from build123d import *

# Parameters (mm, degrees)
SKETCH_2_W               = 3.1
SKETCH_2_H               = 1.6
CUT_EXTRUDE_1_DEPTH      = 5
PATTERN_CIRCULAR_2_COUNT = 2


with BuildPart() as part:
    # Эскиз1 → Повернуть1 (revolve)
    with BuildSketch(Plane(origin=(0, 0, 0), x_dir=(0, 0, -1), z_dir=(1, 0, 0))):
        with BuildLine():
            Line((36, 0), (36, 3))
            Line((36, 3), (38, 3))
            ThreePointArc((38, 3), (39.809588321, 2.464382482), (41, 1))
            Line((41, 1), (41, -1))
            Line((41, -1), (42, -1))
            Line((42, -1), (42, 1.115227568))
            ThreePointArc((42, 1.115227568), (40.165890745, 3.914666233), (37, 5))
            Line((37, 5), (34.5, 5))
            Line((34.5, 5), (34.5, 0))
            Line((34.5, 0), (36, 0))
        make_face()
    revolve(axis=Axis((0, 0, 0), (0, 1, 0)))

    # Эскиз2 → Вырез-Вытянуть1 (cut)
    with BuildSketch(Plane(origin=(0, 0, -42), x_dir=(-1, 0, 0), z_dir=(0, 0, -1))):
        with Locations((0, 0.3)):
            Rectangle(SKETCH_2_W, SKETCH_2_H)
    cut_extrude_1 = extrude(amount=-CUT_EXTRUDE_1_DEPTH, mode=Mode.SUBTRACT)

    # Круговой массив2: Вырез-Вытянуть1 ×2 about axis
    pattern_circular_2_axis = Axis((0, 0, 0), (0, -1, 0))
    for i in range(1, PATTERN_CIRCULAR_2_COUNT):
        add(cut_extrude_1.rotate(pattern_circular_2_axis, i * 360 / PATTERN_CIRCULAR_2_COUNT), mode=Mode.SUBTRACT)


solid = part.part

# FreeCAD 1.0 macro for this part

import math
import FreeCAD as App
import Part
import Sketcher
Q = App.Units.Quantity


def add_polygon(sketch, points):
    """Adds a closed chain of lines whose ends are joined by coincident constraints."""
    first, n = sketch.GeometryCount, len(points)
    for a, b in zip(points, points[1:] + points[:1]):
        sketch.addGeometry(Part.LineSegment(App.Vector(*a, 0), App.Vector(*b, 0)), False)
    for i in range(n):
        sketch.addConstraint(Sketcher.Constraint("Coincident", first + i, 2, first + (i + 1) % n, 1))

doc = App.newDocument("Part")
body = doc.addObject("PartDesign::Body", "Body")

# Sketch on YZ plane
sketch1 = doc.addObject("Sketcher::SketchObject", "Sketch")
body.addObject(sketch1)
sketch1.AttachmentSupport = (doc.YZ_Plane, [""])
sketch1.MapMode = "FlatFace"
sketch1.addGeometry(Part.LineSegment(App.Vector(0, -36, 0), App.Vector(3, -36, 0)), False)
sketch1.addGeometry(Part.LineSegment(App.Vector(3, -36, 0), App.Vector(3, -38, 0)), False)
sketch1.addGeometry(Part.ArcOfCircle(Part.Circle(App.Vector(-0.2, -38, 0), App.Vector(0, 0, 1), 3.2), math.radians(-68), math.radians(1)), False)
sketch1.addGeometry(Part.LineSegment(App.Vector(1, -41, 0), App.Vector(-1, -41, 0)), False)
sketch1.addGeometry(Part.LineSegment(App.Vector(-1, -41, 0), App.Vector(-1, -42, 0)), False)
sketch1.addGeometry(Part.LineSegment(App.Vector(-1, -42, 0), App.Vector(1.1, -42, 0)), False)
sketch1.addGeometry(Part.ArcOfCircle(Part.Circle(App.Vector(-0.2, -37, 0), App.Vector(0, 0, 1), 5.2), math.radians(-76), math.radians(0)), False)
sketch1.addGeometry(Part.LineSegment(App.Vector(5, -37, 0), App.Vector(5, -34.5, 0)), False)
sketch1.addGeometry(Part.LineSegment(App.Vector(5, -34.5, 0), App.Vector(0, -34.5, 0)), False)
sketch1.addGeometry(Part.LineSegment(App.Vector(0, -34.5, 0), App.Vector(0, -36, 0)), False)
sketch1.addConstraint(Sketcher.Constraint("Coincident", 0, 2, 1, 1))
sketch1.addConstraint(Sketcher.Constraint("Coincident", 1, 2, 2, 2))
sketch1.addConstraint(Sketcher.Constraint("Coincident", 2, 1, 3, 1))
sketch1.addConstraint(Sketcher.Constraint("Coincident", 3, 2, 4, 1))
sketch1.addConstraint(Sketcher.Constraint("Coincident", 4, 2, 5, 1))
sketch1.addConstraint(Sketcher.Constraint("Coincident", 5, 2, 6, 1))
sketch1.addConstraint(Sketcher.Constraint("Tangent", 6, 2, 7, 1))
sketch1.addConstraint(Sketcher.Constraint("Coincident", 7, 2, 8, 1))
sketch1.addConstraint(Sketcher.Constraint("Coincident", 8, 2, 9, 1))
sketch1.addConstraint(Sketcher.Constraint("Coincident", 9, 2, 0, 1))
sketch1.addConstraint(Sketcher.Constraint("Horizontal", 0))
sketch1.addConstraint(Sketcher.Constraint("Vertical", 1))
sketch1.addConstraint(Sketcher.Constraint("Horizontal", 3))
sketch1.addConstraint(Sketcher.Constraint("Vertical", 4))
sketch1.addConstraint(Sketcher.Constraint("Horizontal", 5))
sketch1.addConstraint(Sketcher.Constraint("Vertical", 7))
sketch1.addConstraint(Sketcher.Constraint("Horizontal", 8))
sketch1.addConstraint(Sketcher.Constraint("Vertical", 9))
sketch1.addConstraint(Sketcher.Constraint("PointOnObject", 8, 2, -2))
sketch1.addConstraint(Sketcher.Constraint("Equal", 3, 1))
sketch1.addConstraint(Sketcher.Constraint("DistanceX", 0, 1, 0, 2, Q("3 mm")))
sketch1.addConstraint(Sketcher.Constraint("DistanceX", 3, 2, 3, 1, Q("2 mm")))
sketch1.addConstraint(Sketcher.Constraint("DistanceX", 8, 2, 8, 1, Q("5 mm")))
sketch1.addConstraint(Sketcher.Constraint("DistanceY", 4, 2, 4, 1, Q("1 mm")))
sketch1.addConstraint(Sketcher.Constraint("DistanceY", 7, 1, 7, 2, Q("2.5 mm")))
sketch1.addConstraint(Sketcher.Constraint("DistanceY", 9, 2, 9, 1, Q("1.5 mm")))
sketch1.addConstraint(Sketcher.Constraint("DistanceY", 6, 3, -1, 1, Q("37 mm")))
sketch1.addConstraint(Sketcher.Constraint("DistanceX", -1, 1, 2, 1, Q("1 mm")))
sketch1.addConstraint(Sketcher.Constraint("DistanceY", 2, 1, -1, 1, Q("41 mm")))
sketch1.addConstraint(Sketcher.Constraint("Radius", 2, Q("3.190628 mm")))
sketch1.addConstraint(Sketcher.Constraint("Radius", 6, Q("5.160078 mm")))
revolution = doc.addObject("PartDesign::Revolution", "Revolution")
body.addObject(revolution)
revolution.Profile = sketch1
revolution.ReferenceAxis = (sketch1, ["H_Axis"])
revolution.Angle = 360

# Sketch on XY plane
sketch2 = doc.addObject("Sketcher::SketchObject", "Sketch001")
body.addObject(sketch2)
sketch2.AttachmentSupport = (doc.XY_Plane, [""])
sketch2.MapMode = "FlatFace"
sketch2.AttachmentOffset = App.Placement(App.Vector(0, 0, -42), App.Rotation())
add_polygon(sketch2, [(1.6, 1.1), (1.6, -0.5), (-1.6, -0.5), (-1.6, 1.1)])  # lines 0-3
sketch2.addConstraint(Sketcher.Constraint("Vertical", 0))
sketch2.addConstraint(Sketcher.Constraint("Horizontal", 1))
sketch2.addConstraint(Sketcher.Constraint("Vertical", 2))
sketch2.addConstraint(Sketcher.Constraint("Horizontal", 3))
sketch2.addConstraint(Sketcher.Constraint("DistanceX", 1, 2, 1, 1, Q("3.1 mm")))
sketch2.addConstraint(Sketcher.Constraint("DistanceY", 0, 2, 0, 1, Q("1.6 mm")))
sketch2.addConstraint(Sketcher.Constraint("DistanceY", 0, 2, -1, 1, Q("0.5 mm")))
sketch2.addConstraint(Sketcher.Constraint("DistanceX", -1, 1, 0, 2, Q("1.55 mm")))
pocket1 = doc.addObject("PartDesign::Pocket", "Pocket")
body.addObject(pocket1)
pocket1.Profile = sketch2
pocket1.Length = 5
pocket1.Reversed = True
doc.recompute()

polarpattern = doc.addObject("PartDesign::PolarPattern", "PolarPattern")
body.addObject(polarpattern)
polarpattern.Originals = [pocket1]
polarpattern.Axis = (doc.Y_Axis, [""])
polarpattern.Angle = 360
polarpattern.Occurrences = 2
body.Tip = polarpattern

doc.recompute()
